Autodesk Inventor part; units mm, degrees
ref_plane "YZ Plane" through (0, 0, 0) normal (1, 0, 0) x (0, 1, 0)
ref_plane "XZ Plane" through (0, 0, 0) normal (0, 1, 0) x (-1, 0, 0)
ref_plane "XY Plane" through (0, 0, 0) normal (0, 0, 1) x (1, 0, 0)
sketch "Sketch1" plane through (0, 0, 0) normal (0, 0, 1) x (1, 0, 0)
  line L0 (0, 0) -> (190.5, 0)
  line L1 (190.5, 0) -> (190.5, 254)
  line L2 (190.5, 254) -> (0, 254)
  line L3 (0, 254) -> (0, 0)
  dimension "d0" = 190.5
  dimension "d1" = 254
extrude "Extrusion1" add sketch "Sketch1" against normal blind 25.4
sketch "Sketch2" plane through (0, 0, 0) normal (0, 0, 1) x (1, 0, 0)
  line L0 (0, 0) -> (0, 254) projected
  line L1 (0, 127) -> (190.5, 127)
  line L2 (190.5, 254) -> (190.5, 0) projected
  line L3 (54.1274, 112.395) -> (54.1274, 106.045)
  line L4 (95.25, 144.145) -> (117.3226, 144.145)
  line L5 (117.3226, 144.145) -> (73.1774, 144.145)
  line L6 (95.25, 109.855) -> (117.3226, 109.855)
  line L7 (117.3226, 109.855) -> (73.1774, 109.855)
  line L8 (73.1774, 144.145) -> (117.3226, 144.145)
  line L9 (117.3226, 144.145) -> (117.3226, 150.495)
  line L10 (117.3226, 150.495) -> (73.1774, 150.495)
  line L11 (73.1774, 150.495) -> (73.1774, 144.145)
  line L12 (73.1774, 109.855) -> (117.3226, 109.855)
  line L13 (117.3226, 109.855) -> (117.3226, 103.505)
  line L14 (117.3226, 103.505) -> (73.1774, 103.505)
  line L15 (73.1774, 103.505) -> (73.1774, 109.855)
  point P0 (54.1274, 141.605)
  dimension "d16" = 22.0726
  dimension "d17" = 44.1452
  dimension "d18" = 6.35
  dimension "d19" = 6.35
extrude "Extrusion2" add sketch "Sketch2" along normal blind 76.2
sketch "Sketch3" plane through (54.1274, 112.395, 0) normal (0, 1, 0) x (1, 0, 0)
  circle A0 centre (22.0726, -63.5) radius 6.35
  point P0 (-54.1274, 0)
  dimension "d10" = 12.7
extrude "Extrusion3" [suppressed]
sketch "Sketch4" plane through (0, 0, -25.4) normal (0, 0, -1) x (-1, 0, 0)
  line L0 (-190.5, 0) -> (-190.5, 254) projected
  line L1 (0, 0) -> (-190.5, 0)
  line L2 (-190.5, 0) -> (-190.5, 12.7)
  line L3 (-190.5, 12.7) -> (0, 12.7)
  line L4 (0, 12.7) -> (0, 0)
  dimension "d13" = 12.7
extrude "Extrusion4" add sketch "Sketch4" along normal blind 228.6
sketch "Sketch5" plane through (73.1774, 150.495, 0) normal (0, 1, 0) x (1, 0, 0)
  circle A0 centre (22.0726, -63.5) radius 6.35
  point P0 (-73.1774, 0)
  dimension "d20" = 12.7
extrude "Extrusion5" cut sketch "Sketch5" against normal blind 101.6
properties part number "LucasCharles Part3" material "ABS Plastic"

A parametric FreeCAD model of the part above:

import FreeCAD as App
import Part
import Sketcher

V = App.Vector
Q = App.Units.Quantity


def add_polygon(sketch, points):
    """Adds a closed chain of lines whose ends are joined by coincident constraints."""
    first, n = sketch.GeometryCount, len(points)
    for a, b in zip(points, points[1:] + points[:1]):
        sketch.addGeometry(Part.LineSegment(App.Vector(*a, 0), App.Vector(*b, 0)), False)
    for i in range(n):
        sketch.addConstraint(Sketcher.Constraint("Coincident", first + i, 2, first + (i + 1) % n, 1))

doc = App.newDocument("Part")
body = doc.addObject("PartDesign::Body", "Body")

sketch1 = doc.addObject("Sketcher::SketchObject", "Sketch")
body.addObject(sketch1)
sketch1.AttachmentSupport = (doc.XY_Plane, [""])
sketch1.MapMode = "FlatFace"
add_polygon(sketch1, [(0, 254), (0, 0), (190.5, 0), (190.5, 254)])
sketch1.addConstraint([
    Sketcher.Constraint("Vertical", 0),
    Sketcher.Constraint("Horizontal", 1),
    Sketcher.Constraint("Vertical", 2),
    Sketcher.Constraint("Horizontal", 3),
    Sketcher.Constraint("Coincident", 0, 2, -1, 1),
    Sketcher.Constraint("DistanceY", 0, 2, 0, 1, Q("10 in")),
    Sketcher.Constraint("DistanceX", 1, 1, 1, 2, Q("7.5 in")),
])
pad1 = doc.addObject("PartDesign::Pad", "Pad")
body.addObject(pad1)
pad1.Profile = sketch1
pad1.Length = Q("1 in")
pad1.Reversed = True

sketch2 = doc.addObject("Sketcher::SketchObject", "Sketch001")
body.addObject(sketch2)
sketch2.AttachmentSupport = (doc.XY_Plane, [""])
sketch2.MapMode = "FlatFace"
add_polygon(sketch2, [(73.1774, 144.145), (117.3226, 144.145), (117.3226, 150.495), (73.1774, 150.495)])
add_polygon(sketch2, [(117.3226, 109.855), (73.1774, 109.855), (73.1774, 103.505), (117.3226, 103.505)])
sketch2.addConstraint([
    Sketcher.Constraint("Horizontal", 0),
    Sketcher.Constraint("Vertical", 1),
    Sketcher.Constraint("Horizontal", 2),
    Sketcher.Constraint("Vertical", 3),
    Sketcher.Constraint("Horizontal", 4),
    Sketcher.Constraint("Vertical", 5),
    Sketcher.Constraint("Horizontal", 6),
    Sketcher.Constraint("Vertical", 7),
    Sketcher.Constraint("Vertical", 3, 2, 4, 2),
    Sketcher.Constraint("Vertical", 1, 2, 6, 2),
    Sketcher.Constraint("Equal", 3, 5),
    Sketcher.Constraint("DistanceY", 1, 1, 1, 2, Q("0.25 in")),
    Sketcher.Constraint("DistanceX", 0, 1, 0, 2, Q("1.738 in")),
    Sketcher.Constraint("DistanceY", 4, 2, 2, 2, Q("1.6 in")),
    Sketcher.Constraint("DistanceX", -1, 1, 0, 2, Q("4.619 in")),
    Sketcher.Constraint("DistanceY", -1, 1, 0, 2, Q("5.675 in")),
])
pad2 = doc.addObject("PartDesign::Pad", "Pad001")
body.addObject(pad2)
pad2.Profile = sketch2
pad2.Length = Q("3 in")

sketch3 = doc.addObject("Sketcher::SketchObject", "Sketch002")
body.addObject(sketch3)
sketch3.AttachmentSupport = (doc.XY_Plane, [""])
sketch3.MapMode = "FlatFace"
sketch3.AttachmentOffset = App.Placement(V(0, 0, -1 * 25.4), App.Rotation())
add_polygon(sketch3, [(190.5, 12.7), (190.5, 0), (0, 0), (0, 12.7)])
sketch3.addConstraint([
    Sketcher.Constraint("Vertical", 0),
    Sketcher.Constraint("Horizontal", 1),
    Sketcher.Constraint("Vertical", 2),
    Sketcher.Constraint("Horizontal", 3),
    Sketcher.Constraint("Coincident", 1, 2, -1, 1),
    Sketcher.Constraint("DistanceY", 0, 2, 0, 1, Q("0.5 in")),
    Sketcher.Constraint("DistanceX", 1, 2, 1, 1, Q("7.5 in")),
])
pad3 = doc.addObject("PartDesign::Pad", "Pad002")
body.addObject(pad3)
pad3.Profile = sketch3
pad3.Length = Q("9 in")
pad3.Reversed = True

sketch4 = doc.addObject("Sketcher::SketchObject", "Sketch003")
body.addObject(sketch4)
sketch4.AttachmentSupport = (doc.XZ_Plane, [""])
sketch4.MapMode = "FlatFace"
sketch4.AttachmentOffset = App.Placement(V(0, 0, -5.925 * 25.4), App.Rotation())
sketch4.addGeometry(Part.Circle(V(95.25, 63.5, 0), V(0, 0, 1), 6.35), False)
sketch4.addConstraint([
    Sketcher.Constraint("Diameter", 0, Q("0.5 in")),
    Sketcher.Constraint("DistanceY", -1, 1, 0, 3, Q("2.5 in")),
    Sketcher.Constraint("DistanceX", -1, 1, 0, 3, Q("3.75 in")),
])
pocket1 = doc.addObject("PartDesign::Pocket", "Pocket")
body.addObject(pocket1)
pocket1.Profile = sketch4
pocket1.Length = Q("4 in")
pocket1.Reversed = True

doc.recompute()
